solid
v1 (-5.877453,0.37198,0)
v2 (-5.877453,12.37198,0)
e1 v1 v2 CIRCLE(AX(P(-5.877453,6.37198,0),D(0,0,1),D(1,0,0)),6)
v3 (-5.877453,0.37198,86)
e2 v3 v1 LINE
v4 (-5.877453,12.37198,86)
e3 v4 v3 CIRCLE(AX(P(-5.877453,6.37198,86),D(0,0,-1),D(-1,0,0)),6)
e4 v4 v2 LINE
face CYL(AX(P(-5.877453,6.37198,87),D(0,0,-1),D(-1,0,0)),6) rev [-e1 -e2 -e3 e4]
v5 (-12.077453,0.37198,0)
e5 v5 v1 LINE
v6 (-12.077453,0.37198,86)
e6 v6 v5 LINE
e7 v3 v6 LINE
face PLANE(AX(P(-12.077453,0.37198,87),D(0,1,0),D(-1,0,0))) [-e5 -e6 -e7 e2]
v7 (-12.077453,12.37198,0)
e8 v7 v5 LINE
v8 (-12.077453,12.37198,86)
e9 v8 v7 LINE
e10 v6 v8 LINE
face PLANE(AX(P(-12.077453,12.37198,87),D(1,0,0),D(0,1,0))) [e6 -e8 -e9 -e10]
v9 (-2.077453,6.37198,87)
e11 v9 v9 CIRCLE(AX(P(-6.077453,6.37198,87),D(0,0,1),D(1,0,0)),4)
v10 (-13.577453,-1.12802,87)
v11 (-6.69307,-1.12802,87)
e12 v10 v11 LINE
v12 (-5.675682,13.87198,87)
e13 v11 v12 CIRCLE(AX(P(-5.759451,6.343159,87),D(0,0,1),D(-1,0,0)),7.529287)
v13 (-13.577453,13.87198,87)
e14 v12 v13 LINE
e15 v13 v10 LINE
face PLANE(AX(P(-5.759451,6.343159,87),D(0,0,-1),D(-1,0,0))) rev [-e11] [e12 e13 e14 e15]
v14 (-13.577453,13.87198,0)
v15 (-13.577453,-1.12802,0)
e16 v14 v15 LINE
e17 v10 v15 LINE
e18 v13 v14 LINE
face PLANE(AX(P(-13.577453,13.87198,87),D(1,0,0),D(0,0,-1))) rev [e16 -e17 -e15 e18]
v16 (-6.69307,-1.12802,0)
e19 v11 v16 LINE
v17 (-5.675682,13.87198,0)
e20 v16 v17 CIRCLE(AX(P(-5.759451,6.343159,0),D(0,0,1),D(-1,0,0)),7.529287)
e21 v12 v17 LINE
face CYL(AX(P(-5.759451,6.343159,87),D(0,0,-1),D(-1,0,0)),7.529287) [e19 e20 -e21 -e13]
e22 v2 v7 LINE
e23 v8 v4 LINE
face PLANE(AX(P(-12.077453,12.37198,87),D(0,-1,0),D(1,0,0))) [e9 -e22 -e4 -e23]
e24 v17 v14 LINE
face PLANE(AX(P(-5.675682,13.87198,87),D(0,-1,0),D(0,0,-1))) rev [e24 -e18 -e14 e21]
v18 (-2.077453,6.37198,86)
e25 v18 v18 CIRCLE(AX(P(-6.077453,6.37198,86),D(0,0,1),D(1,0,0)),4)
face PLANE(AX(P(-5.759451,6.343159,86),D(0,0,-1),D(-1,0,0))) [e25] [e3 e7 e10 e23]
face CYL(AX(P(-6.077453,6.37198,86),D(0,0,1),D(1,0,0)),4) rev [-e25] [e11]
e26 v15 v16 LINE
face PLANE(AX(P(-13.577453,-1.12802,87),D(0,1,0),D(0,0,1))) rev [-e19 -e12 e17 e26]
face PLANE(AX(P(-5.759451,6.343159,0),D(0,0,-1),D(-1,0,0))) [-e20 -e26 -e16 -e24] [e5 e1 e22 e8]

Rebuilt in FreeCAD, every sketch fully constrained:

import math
import FreeCAD as App
import Part
import Sketcher

doc = App.newDocument("Part")
body = doc.addObject("PartDesign::Body", "Body")

sketch1 = body.newObject("Sketcher::SketchObject", "Sketch")
sketch1.AttachmentSupport = (doc.getObject("XY_Plane"), [""])
sketch1.MapMode = "FlatFace"
sketch1.addGeometry([
    Part.LineSegment(App.Vector(-6, 14, 0), App.Vector(-14, 14, 0)),
    Part.LineSegment(App.Vector(-14, 14, 0), App.Vector(-14, -1, 0)),
    Part.LineSegment(App.Vector(-14, -1, 0), App.Vector(-7, -1, 0)),
    Part.ArcOfCircle(Part.Circle(App.Vector(-6, 6, 0), App.Vector(0, 0, 1), 8), math.radians(-97), math.radians(89)),
    Part.LineSegment(App.Vector(-12, 0, 0), App.Vector(-12, 12, 0)),
    Part.LineSegment(App.Vector(-12, 12, 0), App.Vector(-6, 12, 0)),
    Part.ArcOfCircle(Part.Circle(App.Vector(-6, 6, 0), App.Vector(0, 0, 1), 6), math.radians(-90), math.radians(90)),
    Part.LineSegment(App.Vector(-6, 0, 0), App.Vector(-12, 0, 0)),
], False)
sketch1.addConstraint([
    Sketcher.Constraint("Coincident", 0, 2, 1, 1),
    Sketcher.Constraint("Coincident", 1, 2, 2, 1),
    Sketcher.Constraint("Coincident", 2, 2, 3, 1),
    Sketcher.Constraint("Coincident", 3, 2, 0, 1),
    Sketcher.Constraint("Coincident", 4, 2, 5, 1),
    Sketcher.Constraint("Tangent", 5, 2, 6, 2),
    Sketcher.Constraint("Tangent", 6, 1, 7, 1),
    Sketcher.Constraint("Coincident", 7, 2, 4, 1),
    Sketcher.Constraint("Horizontal", 0),
    Sketcher.Constraint("Vertical", 1),
    Sketcher.Constraint("Horizontal", 2),
    Sketcher.Constraint("Vertical", 4),
    Sketcher.Constraint("Horizontal", 5),
    Sketcher.Constraint("Horizontal", 7),
    Sketcher.Constraint("Radius", 6, 6.0),
    Sketcher.Constraint("DistanceY", 1, 2, 1, 1, 15.0),
    Sketcher.Constraint("DistanceX", 5, 1, 5, 2, 6.2),
    Sketcher.Constraint("DistanceX", 0, 2, 6, 3, 7.7),
    Sketcher.Constraint("DistanceY", 6, 3, 0, 2, 7.5),
    Sketcher.Constraint("Radius", 3, 7.529287),
    Sketcher.Constraint("DistanceX", 0, 2, 0, 1, 7.901771),
    Sketcher.Constraint("DistanceX", 2, 1, 2, 2, 6.884383),
    Sketcher.Constraint("DistanceX", 3, 3, -1, 1, 5.759451),
    Sketcher.Constraint("DistanceY", -1, 1, 3, 3, 6.343159),
])
pad1 = body.newObject("PartDesign::Pad", "Pad")
pad1.Profile = sketch1
pad1.Length = 87

sketch2 = body.newObject("Sketcher::SketchObject", "Sketch001")
sketch2.AttachmentSupport = (doc.getObject("XY_Plane"), [""])
sketch2.MapMode = "FlatFace"
sketch2.AttachmentOffset = App.Placement(App.Vector(0, 0, 86), App.Rotation())
sketch2.addGeometry([
    Part.LineSegment(App.Vector(-13.6, 13.9, 0), App.Vector(-13.6, -1.1, 0)),
    Part.LineSegment(App.Vector(-13.6, -1.1, 0), App.Vector(-4.8, -1.1, 0)),
    Part.ArcOfCircle(Part.Circle(App.Vector(-5.8, 6.3, 0), App.Vector(0, 0, 1), 7.5), math.radians(-83), math.radians(89)),
    Part.LineSegment(App.Vector(-5.7, 13.9, 0), App.Vector(-13.6, 13.9, 0)),
    Part.Circle(App.Vector(-6.1, 6.4, 0), App.Vector(0, 0, 1), 4),
], False)
sketch2.addConstraint([
    Sketcher.Constraint("Coincident", 0, 2, 1, 1),
    Sketcher.Constraint("Coincident", 1, 2, 2, 1),
    Sketcher.Constraint("Coincident", 2, 2, 3, 1),
    Sketcher.Constraint("Coincident", 3, 2, 0, 1),
    Sketcher.Constraint("Vertical", 0),
    Sketcher.Constraint("Horizontal", 1),
    Sketcher.Constraint("Horizontal", 3),
    Sketcher.Constraint("Diameter", 4, 8.0),
    Sketcher.Constraint("DistanceY", 0, 2, 0, 1, 15.0),
    Sketcher.Constraint("DistanceX", 0, 2, 4, 3, 7.5),
    Sketcher.Constraint("DistanceY", 0, 2, 4, 3, 7.5),
    Sketcher.Constraint("Radius", 2, 7.529287),
    Sketcher.Constraint("DistanceX", 1, 1, 1, 2, 8.751621),
    Sketcher.Constraint("DistanceX", 3, 2, 3, 1, 7.901771),
    Sketcher.Constraint("DistanceX", 2, 3, -1, 1, 5.759451),
    Sketcher.Constraint("DistanceY", -1, 1, 2, 3, 6.343159),
])
pad2 = body.newObject("PartDesign::Pad", "Pad001")
pad2.Profile = sketch2
pad2.Length = 1

doc.recompute()
